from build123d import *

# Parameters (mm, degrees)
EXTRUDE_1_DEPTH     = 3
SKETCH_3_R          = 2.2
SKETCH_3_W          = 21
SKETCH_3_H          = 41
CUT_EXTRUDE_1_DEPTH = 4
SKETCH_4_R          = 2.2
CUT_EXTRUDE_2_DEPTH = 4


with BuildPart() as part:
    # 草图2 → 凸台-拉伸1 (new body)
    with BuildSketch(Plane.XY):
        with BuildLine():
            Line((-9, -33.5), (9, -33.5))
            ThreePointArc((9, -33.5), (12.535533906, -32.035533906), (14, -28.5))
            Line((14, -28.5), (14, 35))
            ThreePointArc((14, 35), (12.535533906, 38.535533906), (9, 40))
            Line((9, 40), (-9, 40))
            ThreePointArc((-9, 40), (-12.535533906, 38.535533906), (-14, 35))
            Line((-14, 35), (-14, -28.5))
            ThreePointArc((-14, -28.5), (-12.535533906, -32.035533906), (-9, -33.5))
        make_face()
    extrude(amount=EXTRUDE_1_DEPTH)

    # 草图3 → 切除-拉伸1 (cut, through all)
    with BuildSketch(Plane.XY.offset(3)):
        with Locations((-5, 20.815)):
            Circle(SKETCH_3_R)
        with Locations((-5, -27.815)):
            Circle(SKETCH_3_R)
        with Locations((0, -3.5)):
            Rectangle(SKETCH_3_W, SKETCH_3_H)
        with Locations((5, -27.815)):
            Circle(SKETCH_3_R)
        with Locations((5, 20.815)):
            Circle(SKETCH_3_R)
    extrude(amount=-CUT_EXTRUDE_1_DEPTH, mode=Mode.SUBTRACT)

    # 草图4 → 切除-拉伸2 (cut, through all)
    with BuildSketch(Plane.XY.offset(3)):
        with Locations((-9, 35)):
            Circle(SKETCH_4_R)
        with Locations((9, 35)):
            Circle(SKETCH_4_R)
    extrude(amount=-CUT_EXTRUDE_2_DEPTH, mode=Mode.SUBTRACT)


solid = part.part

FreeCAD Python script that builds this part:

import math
import FreeCAD as App
import Part
import Sketcher
from FreeCAD import Vector

doc = App.newDocument("Part")
body = doc.addObject("PartDesign::Body", "Body")

sketch1 = body.newObject("Sketcher::SketchObject", "Sketch")
sketch1.AttachmentSupport = (doc.getObject("XY_Plane"), [""])
sketch1.MapMode = "FlatFace"
sketch1.addGeometry([
    Part.LineSegment(Vector(-9, -33.5, 0), Vector(9, -33.5, 0)),
    Part.ArcOfCircle(Part.Circle(Vector(9, -28.5, 0), Vector(0, 0, 1), 5), math.radians(-90), math.radians(0)),
    Part.LineSegment(Vector(14, -28.5, 0), Vector(14, 35, 0)),
    Part.ArcOfCircle(Part.Circle(Vector(9, 35, 0), Vector(0, 0, 1), 5), math.radians(0), math.radians(90)),
    Part.LineSegment(Vector(9, 40, 0), Vector(-9, 40, 0)),
    Part.ArcOfCircle(Part.Circle(Vector(-9, 35, 0), Vector(0, 0, 1), 5), math.radians(90), math.radians(180)),
    Part.LineSegment(Vector(-14, 35, 0), Vector(-14, -28.5, 0)),
    Part.ArcOfCircle(Part.Circle(Vector(-9, -28.5, 0), Vector(0, 0, 1), 5), math.radians(180), math.radians(270)),
], False)
sketch1.addConstraint([
    Sketcher.Constraint("Tangent", 0, 2, 1, 1),
    Sketcher.Constraint("Tangent", 1, 2, 2, 1),
    Sketcher.Constraint("Tangent", 2, 2, 3, 1),
    Sketcher.Constraint("Tangent", 3, 2, 4, 1),
    Sketcher.Constraint("Tangent", 4, 2, 5, 1),
    Sketcher.Constraint("Tangent", 5, 2, 6, 1),
    Sketcher.Constraint("Tangent", 6, 2, 7, 1),
    Sketcher.Constraint("Tangent", 7, 2, 0, 1),
    Sketcher.Constraint("Horizontal", 0),
    Sketcher.Constraint("Vertical", 2),
    Sketcher.Constraint("Horizontal", 4),
    Sketcher.Constraint("Vertical", 6),
    Sketcher.Constraint("Equal", 1, 3),
    Sketcher.Constraint("Equal", 3, 5),
    Sketcher.Constraint("Equal", 5, 7),
    Sketcher.Constraint("Radius", 1, 5.0),
    Sketcher.Constraint("DistanceX", 0, 1, 0, 2, 18.0),
    Sketcher.Constraint("DistanceY", 2, 1, 2, 2, 63.5),
    Sketcher.Constraint("DistanceX", -1, 1, 1, 3, 9.0),
    Sketcher.Constraint("DistanceY", -1, 1, 3, 3, 35.0),
])
pad1 = body.newObject("PartDesign::Pad", "Pad")
pad1.Profile = sketch1
pad1.Length = 3

sketch2 = body.newObject("Sketcher::SketchObject", "Sketch001")
sketch2.AttachmentSupport = (doc.getObject("XY_Plane"), [""])
sketch2.MapMode = "FlatFace"
sketch2.AttachmentOffset = App.Placement(Vector(0, 0, 3), App.Rotation())
sketch2.addGeometry([
    Part.Circle(Vector(-5, 20.815, 0), Vector(0, 0, 1), 2.2),
    Part.Circle(Vector(-5, -27.815, 0), Vector(0, 0, 1), 2.2),
    Part.LineSegment(Vector(-10.5, 17, 0), Vector(-10.5, -24, 0)),
    Part.LineSegment(Vector(-10.5, -24, 0), Vector(10.5, -24, 0)),
    Part.LineSegment(Vector(10.5, -24, 0), Vector(10.5, 17, 0)),
    Part.LineSegment(Vector(10.5, 17, 0), Vector(-10.5, 17, 0)),
    Part.Circle(Vector(5, -27.815, 0), Vector(0, 0, 1), 2.2),
    Part.Circle(Vector(5, 20.815, 0), Vector(0, 0, 1), 2.2),
], False)
sketch2.addConstraint([
    Sketcher.Constraint("Coincident", 2, 2, 3, 1),
    Sketcher.Constraint("Coincident", 3, 2, 4, 1),
    Sketcher.Constraint("Coincident", 4, 2, 5, 1),
    Sketcher.Constraint("Coincident", 5, 2, 2, 1),
    Sketcher.Constraint("Vertical", 2),
    Sketcher.Constraint("Horizontal", 3),
    Sketcher.Constraint("Vertical", 4),
    Sketcher.Constraint("Horizontal", 5),
    Sketcher.Constraint("Equal", 0, 1),
    Sketcher.Constraint("Equal", 1, 6),
    Sketcher.Constraint("Equal", 6, 7),
    Sketcher.Constraint("Symmetric", 1, 3, 6, 3, -2),
    Sketcher.Constraint("Symmetric", 0, 3, 7, 3, -2),
    Sketcher.Constraint("Vertical", 0, 3, 1, 3),
    Sketcher.Constraint("Diameter", 0, 4.4),
    Sketcher.Constraint("DistanceX", 3, 1, 3, 2, 21.0),
    Sketcher.Constraint("DistanceY", 2, 2, 2, 1, 41.0),
    Sketcher.Constraint("DistanceX", 0, 3, -1, 1, 5.0),
    Sketcher.Constraint("DistanceY", 2, 2, -1, 1, 24.0),
    Sketcher.Constraint("DistanceX", 2, 2, -1, 1, 10.5),
    Sketcher.Constraint("DistanceY", 1, 3, 0, 3, 48.63),
    Sketcher.Constraint("DistanceY", -1, 1, 0, 3, 20.815),
])
pocket1 = body.newObject("PartDesign::Pocket", "Pocket")
pocket1.Profile = sketch2
pocket1.Type = "ThroughAll"

sketch3 = body.newObject("Sketcher::SketchObject", "Sketch002")
sketch3.AttachmentSupport = (doc.getObject("XY_Plane"), [""])
sketch3.MapMode = "FlatFace"
sketch3.AttachmentOffset = App.Placement(Vector(0, 0, 3), App.Rotation())
sketch3.addGeometry([
    Part.Circle(Vector(-9, 35, 0), Vector(0, 0, 1), 2.2),
    Part.Circle(Vector(9, 35, 0), Vector(0, 0, 1), 2.2),
], False)
sketch3.addConstraint([
    Sketcher.Constraint("Equal", 0, 1),
    Sketcher.Constraint("Symmetric", 0, 3, 1, 3, -2),
    Sketcher.Constraint("Diameter", 0, 4.4),
    Sketcher.Constraint("DistanceX", 0, 3, -1, 1, 9.0),
    Sketcher.Constraint("DistanceY", -1, 1, 0, 3, 35.0),
])
pocket2 = body.newObject("PartDesign::Pocket", "Pocket001")
pocket2.Profile = sketch3
pocket2.Type = "ThroughAll"

doc.recompute()
